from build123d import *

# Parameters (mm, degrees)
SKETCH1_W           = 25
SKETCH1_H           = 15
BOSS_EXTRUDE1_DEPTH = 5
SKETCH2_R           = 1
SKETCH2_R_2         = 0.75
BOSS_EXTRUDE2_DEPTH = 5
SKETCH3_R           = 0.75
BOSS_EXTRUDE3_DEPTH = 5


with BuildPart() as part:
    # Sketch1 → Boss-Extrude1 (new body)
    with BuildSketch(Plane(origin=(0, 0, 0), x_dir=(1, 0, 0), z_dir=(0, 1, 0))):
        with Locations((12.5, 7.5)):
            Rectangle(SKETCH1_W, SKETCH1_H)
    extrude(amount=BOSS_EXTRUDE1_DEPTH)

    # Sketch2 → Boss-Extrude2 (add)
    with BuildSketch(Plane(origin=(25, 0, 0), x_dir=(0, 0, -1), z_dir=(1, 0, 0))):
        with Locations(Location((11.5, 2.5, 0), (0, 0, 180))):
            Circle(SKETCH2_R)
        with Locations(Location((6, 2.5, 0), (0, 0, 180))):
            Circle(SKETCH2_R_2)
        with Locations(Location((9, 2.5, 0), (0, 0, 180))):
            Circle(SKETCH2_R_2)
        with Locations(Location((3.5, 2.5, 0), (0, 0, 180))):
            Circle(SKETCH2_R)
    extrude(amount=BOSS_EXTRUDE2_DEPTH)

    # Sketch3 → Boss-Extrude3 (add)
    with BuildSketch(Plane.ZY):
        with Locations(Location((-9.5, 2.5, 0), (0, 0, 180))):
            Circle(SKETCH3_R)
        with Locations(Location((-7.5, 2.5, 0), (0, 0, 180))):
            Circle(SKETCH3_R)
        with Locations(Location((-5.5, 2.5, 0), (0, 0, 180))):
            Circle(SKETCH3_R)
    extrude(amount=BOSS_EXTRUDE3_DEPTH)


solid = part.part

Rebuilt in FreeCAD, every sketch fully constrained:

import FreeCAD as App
import Part
import Sketcher
Q = App.Units.Quantity


def add_polygon(sketch, points):
    """Adds a closed chain of lines whose ends are joined by coincident constraints."""
    first, n = sketch.GeometryCount, len(points)
    for a, b in zip(points, points[1:] + points[:1]):
        sketch.addGeometry(Part.LineSegment(App.Vector(*a, 0), App.Vector(*b, 0)), False)
    for i in range(n):
        sketch.addConstraint(Sketcher.Constraint("Coincident", first + i, 2, first + (i + 1) % n, 1))

doc = App.newDocument("Part")
body = doc.addObject("PartDesign::Body", "Body")

sketch1 = doc.addObject("Sketcher::SketchObject", "Sketch")
body.addObject(sketch1)
sketch1.AttachmentSupport = (doc.XZ_Plane, [""])
sketch1.MapMode = "FlatFace"
add_polygon(sketch1, [(0, -15), (0, 0), (25, 0), (25, -15)])
sketch1.addConstraint([
    Sketcher.Constraint("Vertical", 0),
    Sketcher.Constraint("Horizontal", 1),
    Sketcher.Constraint("Vertical", 2),
    Sketcher.Constraint("Horizontal", 3),
    Sketcher.Constraint("Coincident", 0, 2, -1, 1),
    Sketcher.Constraint("DistanceX", 1, 1, 1, 2, Q("25 mm")),
    Sketcher.Constraint("DistanceY", 0, 1, 0, 2, Q("15 mm")),
])
pad1 = doc.addObject("PartDesign::Pad", "Pad")
body.addObject(pad1)
pad1.Profile = sketch1
pad1.Length = 5
pad1.Reversed = True

sketch2 = doc.addObject("Sketcher::SketchObject", "Sketch001")
body.addObject(sketch2)
sketch2.AttachmentSupport = (doc.YZ_Plane, [""])
sketch2.MapMode = "FlatFace"
sketch2.AttachmentOffset = App.Placement(App.Vector(0, 0, 25), App.Rotation())
sketch2.addGeometry([
    Part.Circle(App.Vector(2.5, -11.5, 0), App.Vector(0, 0, 1), 1),
    Part.Circle(App.Vector(2.5, -6, 0), App.Vector(0, 0, 1), 0.8),
    Part.Circle(App.Vector(2.5, -9, 0), App.Vector(0, 0, 1), 0.8),
    Part.Circle(App.Vector(2.5, -3.5, 0), App.Vector(0, 0, 1), 1),
], False)
sketch2.addConstraint([
    Sketcher.Constraint("Equal", 1, 2),
    Sketcher.Constraint("Equal", 0, 3),
    Sketcher.Constraint("Vertical", 0, 3, 1, 3),
    Sketcher.Constraint("Vertical", 1, 3, 2, 3),
    Sketcher.Constraint("Vertical", 2, 3, 3, 3),
    Sketcher.Constraint("Diameter", 0, Q("2 mm")),
    Sketcher.Constraint("Diameter", 1, Q("1.5 mm")),
    Sketcher.Constraint("DistanceY", 1, 3, -1, 1, Q("6 mm")),
    Sketcher.Constraint("DistanceY", 2, 3, -1, 1, Q("9 mm")),
    Sketcher.Constraint("DistanceY", 0, 3, 3, 3, Q("8 mm")),
    Sketcher.Constraint("DistanceX", -1, 1, 0, 3, Q("2.5 mm")),
    Sketcher.Constraint("DistanceY", 0, 3, -1, 1, Q("11.5 mm")),
])
pad2 = doc.addObject("PartDesign::Pad", "Pad001")
body.addObject(pad2)
pad2.Profile = sketch2
pad2.Length = 5

sketch3 = doc.addObject("Sketcher::SketchObject", "Sketch002")
body.addObject(sketch3)
sketch3.AttachmentSupport = (doc.YZ_Plane, [""])
sketch3.MapMode = "FlatFace"
sketch3.addGeometry([
    Part.Circle(App.Vector(2.5, -9.5, 0), App.Vector(0, 0, 1), 0.8),
    Part.Circle(App.Vector(2.5, -7.5, 0), App.Vector(0, 0, 1), 0.8),
    Part.Circle(App.Vector(2.5, -5.5, 0), App.Vector(0, 0, 1), 0.8),
], False)
sketch3.addConstraint([
    Sketcher.Constraint("Equal", 0, 1),
    Sketcher.Constraint("Equal", 1, 2),
    Sketcher.Constraint("Vertical", 0, 3, 1, 3),
    Sketcher.Constraint("Vertical", 1, 3, 2, 3),
    Sketcher.Constraint("Diameter", 0, Q("1.5 mm")),
    Sketcher.Constraint("DistanceY", 0, 3, 1, 3, Q("2 mm")),
    Sketcher.Constraint("DistanceY", 1, 3, 2, 3, Q("2 mm")),
    Sketcher.Constraint("DistanceX", -1, 1, 0, 3, Q("2.5 mm")),
    Sketcher.Constraint("DistanceY", 0, 3, -1, 1, Q("9.5 mm")),
])
pad3 = doc.addObject("PartDesign::Pad", "Pad002")
body.addObject(pad3)
pad3.Profile = sketch3
pad3.Length = 5
pad3.Reversed = True

doc.recompute()
